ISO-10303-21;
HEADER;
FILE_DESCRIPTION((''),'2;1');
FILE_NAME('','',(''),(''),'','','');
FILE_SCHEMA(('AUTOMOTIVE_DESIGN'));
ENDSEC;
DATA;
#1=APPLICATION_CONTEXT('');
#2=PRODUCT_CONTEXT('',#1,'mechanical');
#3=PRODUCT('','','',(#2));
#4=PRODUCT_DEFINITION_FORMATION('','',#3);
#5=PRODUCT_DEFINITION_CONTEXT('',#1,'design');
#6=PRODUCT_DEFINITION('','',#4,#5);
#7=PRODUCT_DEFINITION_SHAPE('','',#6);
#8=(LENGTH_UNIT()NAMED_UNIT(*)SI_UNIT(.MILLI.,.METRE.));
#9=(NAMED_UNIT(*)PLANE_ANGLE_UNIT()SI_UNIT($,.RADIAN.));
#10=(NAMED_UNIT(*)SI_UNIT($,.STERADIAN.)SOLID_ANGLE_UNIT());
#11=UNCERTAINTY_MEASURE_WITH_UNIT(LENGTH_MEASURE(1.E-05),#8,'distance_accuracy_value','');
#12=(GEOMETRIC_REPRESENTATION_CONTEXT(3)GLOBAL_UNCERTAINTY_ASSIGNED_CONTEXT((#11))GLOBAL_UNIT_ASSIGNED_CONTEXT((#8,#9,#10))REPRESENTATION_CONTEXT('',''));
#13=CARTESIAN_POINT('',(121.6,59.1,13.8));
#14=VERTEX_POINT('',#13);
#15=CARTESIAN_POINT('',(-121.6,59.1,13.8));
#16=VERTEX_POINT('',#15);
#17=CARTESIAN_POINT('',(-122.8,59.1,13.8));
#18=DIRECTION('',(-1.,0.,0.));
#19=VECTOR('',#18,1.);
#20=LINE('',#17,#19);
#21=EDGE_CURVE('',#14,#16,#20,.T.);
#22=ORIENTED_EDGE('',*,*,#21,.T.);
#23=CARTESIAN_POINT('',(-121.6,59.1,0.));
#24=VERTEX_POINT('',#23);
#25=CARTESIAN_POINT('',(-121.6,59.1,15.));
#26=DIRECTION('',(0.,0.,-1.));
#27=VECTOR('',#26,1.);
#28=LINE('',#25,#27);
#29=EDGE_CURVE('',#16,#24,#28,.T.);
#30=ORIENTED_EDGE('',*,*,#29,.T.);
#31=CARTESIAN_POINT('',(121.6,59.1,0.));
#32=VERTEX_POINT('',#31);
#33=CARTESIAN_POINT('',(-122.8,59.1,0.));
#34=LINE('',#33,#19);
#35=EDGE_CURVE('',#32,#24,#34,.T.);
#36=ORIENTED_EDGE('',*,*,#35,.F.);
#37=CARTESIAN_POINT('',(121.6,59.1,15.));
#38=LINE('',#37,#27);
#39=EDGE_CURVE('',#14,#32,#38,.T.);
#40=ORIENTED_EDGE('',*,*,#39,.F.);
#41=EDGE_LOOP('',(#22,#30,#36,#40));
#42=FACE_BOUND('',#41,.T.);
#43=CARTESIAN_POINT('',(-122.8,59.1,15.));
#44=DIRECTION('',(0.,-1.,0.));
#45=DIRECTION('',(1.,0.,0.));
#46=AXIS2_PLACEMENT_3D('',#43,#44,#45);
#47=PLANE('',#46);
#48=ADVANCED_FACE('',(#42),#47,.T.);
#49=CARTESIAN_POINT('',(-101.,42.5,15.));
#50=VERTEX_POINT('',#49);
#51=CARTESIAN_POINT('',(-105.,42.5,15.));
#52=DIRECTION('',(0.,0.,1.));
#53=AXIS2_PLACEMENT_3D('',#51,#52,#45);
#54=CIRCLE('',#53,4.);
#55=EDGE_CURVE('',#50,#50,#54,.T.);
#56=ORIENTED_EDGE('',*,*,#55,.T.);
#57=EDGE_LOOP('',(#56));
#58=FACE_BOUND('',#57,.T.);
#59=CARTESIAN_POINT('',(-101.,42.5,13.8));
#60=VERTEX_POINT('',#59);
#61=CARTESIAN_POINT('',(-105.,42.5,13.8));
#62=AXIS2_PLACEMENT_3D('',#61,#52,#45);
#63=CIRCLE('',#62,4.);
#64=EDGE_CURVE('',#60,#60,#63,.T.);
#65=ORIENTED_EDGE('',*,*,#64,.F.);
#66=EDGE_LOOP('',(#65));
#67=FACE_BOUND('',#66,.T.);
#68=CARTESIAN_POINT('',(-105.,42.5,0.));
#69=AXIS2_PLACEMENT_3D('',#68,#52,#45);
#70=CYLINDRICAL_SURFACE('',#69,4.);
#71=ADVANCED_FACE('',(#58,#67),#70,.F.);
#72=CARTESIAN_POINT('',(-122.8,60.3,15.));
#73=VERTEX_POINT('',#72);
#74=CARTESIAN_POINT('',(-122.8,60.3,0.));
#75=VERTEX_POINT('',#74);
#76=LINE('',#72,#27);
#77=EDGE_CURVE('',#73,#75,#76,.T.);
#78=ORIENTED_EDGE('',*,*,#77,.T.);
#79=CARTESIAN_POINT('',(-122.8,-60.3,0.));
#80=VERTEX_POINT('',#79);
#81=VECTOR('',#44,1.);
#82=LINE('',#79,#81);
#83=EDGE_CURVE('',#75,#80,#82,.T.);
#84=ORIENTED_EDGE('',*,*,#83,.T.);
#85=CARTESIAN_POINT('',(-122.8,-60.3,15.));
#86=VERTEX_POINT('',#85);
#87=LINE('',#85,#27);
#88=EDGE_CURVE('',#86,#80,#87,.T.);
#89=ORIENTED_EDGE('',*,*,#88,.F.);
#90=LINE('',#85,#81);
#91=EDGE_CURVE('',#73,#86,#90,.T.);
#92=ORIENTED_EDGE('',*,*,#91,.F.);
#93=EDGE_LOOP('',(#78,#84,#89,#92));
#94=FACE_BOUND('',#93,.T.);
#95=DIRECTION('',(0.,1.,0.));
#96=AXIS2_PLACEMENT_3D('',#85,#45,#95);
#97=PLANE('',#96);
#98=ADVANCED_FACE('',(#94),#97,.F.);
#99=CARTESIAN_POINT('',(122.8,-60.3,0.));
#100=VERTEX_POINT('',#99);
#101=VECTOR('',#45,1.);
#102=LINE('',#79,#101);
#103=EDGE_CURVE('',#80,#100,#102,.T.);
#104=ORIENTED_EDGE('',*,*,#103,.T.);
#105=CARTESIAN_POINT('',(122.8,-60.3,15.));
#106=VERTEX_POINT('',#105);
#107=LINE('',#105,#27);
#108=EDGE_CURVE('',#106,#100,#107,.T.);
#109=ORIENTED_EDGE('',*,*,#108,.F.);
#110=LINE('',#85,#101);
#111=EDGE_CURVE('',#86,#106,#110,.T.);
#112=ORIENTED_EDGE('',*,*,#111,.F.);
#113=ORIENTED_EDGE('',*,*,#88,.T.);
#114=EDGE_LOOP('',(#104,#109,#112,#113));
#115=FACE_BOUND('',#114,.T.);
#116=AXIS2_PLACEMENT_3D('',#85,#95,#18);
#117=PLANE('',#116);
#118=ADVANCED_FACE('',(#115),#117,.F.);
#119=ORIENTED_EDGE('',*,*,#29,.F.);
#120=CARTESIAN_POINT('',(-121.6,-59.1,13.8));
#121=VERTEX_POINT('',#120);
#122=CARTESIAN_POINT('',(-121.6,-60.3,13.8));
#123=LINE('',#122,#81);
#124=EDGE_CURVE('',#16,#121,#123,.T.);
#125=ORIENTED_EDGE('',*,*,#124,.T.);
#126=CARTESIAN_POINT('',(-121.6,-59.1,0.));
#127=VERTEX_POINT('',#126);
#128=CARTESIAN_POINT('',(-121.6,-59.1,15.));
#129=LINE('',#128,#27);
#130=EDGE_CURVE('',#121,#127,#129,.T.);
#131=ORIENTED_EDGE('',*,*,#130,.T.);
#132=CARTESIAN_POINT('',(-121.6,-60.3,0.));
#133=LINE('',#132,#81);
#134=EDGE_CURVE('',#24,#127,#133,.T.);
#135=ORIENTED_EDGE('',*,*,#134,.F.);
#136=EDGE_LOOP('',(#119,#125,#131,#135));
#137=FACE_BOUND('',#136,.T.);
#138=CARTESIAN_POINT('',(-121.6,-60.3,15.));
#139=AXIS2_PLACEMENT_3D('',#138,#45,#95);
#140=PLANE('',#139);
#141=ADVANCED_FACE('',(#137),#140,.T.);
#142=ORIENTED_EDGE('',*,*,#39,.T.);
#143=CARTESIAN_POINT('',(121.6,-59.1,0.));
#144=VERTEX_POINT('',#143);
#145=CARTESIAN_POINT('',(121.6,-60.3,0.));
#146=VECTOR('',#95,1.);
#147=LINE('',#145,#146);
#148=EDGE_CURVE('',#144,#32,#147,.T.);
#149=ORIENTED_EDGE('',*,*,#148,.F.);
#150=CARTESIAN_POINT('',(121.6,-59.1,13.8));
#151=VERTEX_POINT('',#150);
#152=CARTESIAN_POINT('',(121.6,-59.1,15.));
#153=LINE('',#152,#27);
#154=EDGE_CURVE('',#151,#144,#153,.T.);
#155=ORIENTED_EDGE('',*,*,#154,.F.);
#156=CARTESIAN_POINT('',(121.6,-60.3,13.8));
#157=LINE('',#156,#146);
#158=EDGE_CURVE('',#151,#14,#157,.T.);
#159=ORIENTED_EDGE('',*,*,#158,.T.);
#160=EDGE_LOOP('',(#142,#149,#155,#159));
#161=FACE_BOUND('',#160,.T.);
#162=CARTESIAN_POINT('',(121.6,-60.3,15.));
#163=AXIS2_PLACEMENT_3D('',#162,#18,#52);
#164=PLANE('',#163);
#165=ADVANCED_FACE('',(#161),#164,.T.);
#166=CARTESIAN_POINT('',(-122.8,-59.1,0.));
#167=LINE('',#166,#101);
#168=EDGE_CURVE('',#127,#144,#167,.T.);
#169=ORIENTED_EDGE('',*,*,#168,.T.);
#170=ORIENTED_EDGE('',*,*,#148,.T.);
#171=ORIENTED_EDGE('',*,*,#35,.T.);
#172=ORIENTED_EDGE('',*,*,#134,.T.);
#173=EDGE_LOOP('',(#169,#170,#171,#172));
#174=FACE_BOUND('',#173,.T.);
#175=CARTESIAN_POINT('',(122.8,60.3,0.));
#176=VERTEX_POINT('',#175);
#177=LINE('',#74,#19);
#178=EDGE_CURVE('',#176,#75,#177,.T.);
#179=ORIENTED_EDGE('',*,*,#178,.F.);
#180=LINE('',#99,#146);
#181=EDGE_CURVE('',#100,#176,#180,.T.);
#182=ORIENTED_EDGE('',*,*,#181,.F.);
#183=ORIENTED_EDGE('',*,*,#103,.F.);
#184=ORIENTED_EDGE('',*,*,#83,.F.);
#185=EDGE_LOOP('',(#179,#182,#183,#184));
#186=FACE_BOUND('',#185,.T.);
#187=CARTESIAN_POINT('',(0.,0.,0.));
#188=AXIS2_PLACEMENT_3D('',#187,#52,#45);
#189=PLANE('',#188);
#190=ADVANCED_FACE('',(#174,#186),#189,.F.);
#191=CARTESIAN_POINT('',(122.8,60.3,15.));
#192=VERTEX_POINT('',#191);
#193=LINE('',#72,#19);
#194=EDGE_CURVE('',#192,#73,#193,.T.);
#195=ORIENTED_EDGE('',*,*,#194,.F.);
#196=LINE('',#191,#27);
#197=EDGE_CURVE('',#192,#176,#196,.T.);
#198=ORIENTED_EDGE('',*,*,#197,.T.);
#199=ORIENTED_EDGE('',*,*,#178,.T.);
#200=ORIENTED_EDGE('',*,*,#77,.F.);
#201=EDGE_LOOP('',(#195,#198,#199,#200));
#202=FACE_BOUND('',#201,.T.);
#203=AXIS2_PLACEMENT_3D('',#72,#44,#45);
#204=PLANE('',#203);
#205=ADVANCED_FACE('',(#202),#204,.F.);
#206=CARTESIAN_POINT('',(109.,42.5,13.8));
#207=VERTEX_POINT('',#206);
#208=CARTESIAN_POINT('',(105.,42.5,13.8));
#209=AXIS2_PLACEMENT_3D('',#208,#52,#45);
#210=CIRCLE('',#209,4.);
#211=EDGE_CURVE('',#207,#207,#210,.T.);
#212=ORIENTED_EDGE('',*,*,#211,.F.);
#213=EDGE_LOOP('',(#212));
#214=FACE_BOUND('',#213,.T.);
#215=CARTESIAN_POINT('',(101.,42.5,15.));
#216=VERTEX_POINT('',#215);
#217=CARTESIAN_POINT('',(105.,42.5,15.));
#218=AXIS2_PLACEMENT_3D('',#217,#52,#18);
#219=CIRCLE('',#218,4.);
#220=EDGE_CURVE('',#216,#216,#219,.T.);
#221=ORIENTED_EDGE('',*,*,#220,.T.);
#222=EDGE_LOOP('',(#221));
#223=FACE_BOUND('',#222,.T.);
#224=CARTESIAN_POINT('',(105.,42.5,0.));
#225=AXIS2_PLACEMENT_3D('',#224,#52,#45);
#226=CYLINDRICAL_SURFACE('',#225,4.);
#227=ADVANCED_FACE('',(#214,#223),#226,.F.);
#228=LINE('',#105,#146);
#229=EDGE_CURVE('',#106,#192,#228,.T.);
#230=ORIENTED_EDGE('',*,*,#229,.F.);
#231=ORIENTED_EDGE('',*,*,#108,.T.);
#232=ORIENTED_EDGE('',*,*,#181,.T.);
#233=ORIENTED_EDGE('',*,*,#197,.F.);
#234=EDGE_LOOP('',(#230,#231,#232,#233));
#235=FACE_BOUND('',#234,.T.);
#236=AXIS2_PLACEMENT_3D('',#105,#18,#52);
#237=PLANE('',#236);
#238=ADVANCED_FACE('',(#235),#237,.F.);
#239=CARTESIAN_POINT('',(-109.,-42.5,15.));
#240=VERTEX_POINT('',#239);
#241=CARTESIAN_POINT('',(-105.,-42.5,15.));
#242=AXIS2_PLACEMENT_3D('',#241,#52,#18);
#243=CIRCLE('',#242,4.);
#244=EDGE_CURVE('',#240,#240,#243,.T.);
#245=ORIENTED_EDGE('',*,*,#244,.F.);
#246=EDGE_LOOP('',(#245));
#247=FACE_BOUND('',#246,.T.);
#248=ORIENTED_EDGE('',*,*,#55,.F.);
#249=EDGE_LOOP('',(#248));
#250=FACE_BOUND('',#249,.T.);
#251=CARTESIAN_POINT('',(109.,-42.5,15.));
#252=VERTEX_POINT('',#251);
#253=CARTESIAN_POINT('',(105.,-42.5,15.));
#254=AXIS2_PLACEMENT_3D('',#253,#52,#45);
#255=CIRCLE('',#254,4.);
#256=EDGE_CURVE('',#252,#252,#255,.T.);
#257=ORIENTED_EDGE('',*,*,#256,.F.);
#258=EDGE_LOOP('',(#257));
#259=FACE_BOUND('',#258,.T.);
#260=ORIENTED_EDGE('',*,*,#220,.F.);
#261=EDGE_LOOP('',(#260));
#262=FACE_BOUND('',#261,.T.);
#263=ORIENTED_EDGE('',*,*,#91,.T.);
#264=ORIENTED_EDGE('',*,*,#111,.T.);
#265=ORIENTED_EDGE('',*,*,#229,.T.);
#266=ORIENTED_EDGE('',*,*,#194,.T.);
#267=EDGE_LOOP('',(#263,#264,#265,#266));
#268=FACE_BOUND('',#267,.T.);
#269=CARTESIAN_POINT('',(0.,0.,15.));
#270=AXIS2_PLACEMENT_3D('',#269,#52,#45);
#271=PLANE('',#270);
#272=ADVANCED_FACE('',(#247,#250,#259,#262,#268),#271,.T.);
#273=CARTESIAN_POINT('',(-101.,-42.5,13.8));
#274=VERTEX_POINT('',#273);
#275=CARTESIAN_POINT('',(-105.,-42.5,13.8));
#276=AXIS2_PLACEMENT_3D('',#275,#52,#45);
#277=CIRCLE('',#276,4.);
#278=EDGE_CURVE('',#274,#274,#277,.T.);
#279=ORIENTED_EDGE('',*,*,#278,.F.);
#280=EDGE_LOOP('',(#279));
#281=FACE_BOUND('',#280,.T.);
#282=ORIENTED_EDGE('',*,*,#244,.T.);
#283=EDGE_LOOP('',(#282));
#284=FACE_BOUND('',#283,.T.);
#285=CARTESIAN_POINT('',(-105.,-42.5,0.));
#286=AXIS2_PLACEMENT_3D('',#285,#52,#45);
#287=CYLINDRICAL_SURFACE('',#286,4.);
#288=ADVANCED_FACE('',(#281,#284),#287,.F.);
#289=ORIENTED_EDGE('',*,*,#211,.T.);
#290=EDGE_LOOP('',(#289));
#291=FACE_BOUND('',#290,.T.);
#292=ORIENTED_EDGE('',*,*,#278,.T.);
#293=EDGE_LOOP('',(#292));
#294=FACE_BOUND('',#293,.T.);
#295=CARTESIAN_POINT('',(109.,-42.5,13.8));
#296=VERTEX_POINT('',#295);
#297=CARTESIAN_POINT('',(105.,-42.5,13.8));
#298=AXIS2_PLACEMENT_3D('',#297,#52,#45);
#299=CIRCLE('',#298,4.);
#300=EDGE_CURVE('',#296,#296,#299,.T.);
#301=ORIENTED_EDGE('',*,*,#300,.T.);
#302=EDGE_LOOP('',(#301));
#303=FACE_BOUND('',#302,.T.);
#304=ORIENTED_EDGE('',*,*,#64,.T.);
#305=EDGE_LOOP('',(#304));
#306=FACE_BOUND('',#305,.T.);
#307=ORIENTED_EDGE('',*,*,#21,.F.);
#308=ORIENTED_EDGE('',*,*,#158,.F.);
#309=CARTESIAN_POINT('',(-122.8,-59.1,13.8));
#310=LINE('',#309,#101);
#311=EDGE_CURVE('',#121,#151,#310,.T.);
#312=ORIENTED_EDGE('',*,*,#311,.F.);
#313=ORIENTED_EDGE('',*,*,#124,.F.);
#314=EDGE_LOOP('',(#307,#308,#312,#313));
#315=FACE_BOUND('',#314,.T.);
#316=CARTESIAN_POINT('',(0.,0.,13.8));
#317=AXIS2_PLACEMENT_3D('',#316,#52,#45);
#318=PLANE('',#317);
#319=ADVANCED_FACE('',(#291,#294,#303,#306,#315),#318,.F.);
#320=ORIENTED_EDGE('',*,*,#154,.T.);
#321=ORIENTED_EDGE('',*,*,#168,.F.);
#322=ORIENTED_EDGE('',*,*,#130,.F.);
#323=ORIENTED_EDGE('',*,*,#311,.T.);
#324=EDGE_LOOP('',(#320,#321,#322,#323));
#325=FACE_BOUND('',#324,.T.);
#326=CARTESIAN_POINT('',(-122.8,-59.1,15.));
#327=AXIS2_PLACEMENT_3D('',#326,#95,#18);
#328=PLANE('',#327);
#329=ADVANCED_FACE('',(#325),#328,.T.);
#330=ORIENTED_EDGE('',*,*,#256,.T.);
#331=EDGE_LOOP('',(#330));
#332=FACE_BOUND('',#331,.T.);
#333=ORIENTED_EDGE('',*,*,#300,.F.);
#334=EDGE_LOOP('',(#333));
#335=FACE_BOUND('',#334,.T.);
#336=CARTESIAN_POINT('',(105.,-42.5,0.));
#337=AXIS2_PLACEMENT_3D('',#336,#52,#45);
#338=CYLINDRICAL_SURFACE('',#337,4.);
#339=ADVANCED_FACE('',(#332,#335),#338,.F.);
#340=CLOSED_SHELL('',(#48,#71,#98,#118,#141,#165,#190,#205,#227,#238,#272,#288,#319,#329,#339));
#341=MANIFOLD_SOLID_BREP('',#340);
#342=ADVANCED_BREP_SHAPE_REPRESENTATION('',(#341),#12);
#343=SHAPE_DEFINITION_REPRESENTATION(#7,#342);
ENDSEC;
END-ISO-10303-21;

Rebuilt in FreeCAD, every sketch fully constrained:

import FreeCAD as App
import Part
import Sketcher
from FreeCAD import Vector
Q = App.Units.Quantity


def faces_at(feature, points):
    """Names of the faces that lie closest to the given points."""
    faces = feature.Shape.Faces
    near = lambda p: min(range(len(faces)), key=lambda i: faces[i].distToShape(Part.Vertex(*p))[0])
    return sorted({f"Face{near(p) + 1}" for p in points})

doc = App.newDocument("Part")
body = doc.addObject("PartDesign::Body", "Body")

sketch1 = doc.addObject("Sketcher::SketchObject", "Sketch")
body.addObject(sketch1)
sketch1.AttachmentSupport = (doc.XY_Plane, [""])
sketch1.MapMode = "FlatFace"
sketch1.addGeometry(Part.LineSegment(Vector(-123, 60, 0), Vector(-123, -60, 0)), False)
sketch1.addGeometry(Part.LineSegment(Vector(-123, -60, 0), Vector(123, -60, 0)), False)
sketch1.addGeometry(Part.LineSegment(Vector(123, -60, 0), Vector(123, 60, 0)), False)
sketch1.addGeometry(Part.LineSegment(Vector(123, 60, 0), Vector(-123, 60, 0)), False)
sketch1.addConstraint(Sketcher.Constraint("Coincident", 0, 2, 1, 1))
sketch1.addConstraint(Sketcher.Constraint("Coincident", 1, 2, 2, 1))
sketch1.addConstraint(Sketcher.Constraint("Coincident", 2, 2, 3, 1))
sketch1.addConstraint(Sketcher.Constraint("Coincident", 3, 2, 0, 1))
sketch1.addConstraint(Sketcher.Constraint("Vertical", 0))
sketch1.addConstraint(Sketcher.Constraint("Horizontal", 1))
sketch1.addConstraint(Sketcher.Constraint("Vertical", 2))
sketch1.addConstraint(Sketcher.Constraint("Horizontal", 3))
sketch1.addConstraint(Sketcher.Constraint("Symmetric", 0, 2, 2, 2, -1, 1))
sketch1.addConstraint(Sketcher.Constraint("DistanceX", 1, 1, 1, 2, Q("245.6 mm")))
sketch1.addConstraint(Sketcher.Constraint("DistanceY", 0, 2, 0, 1, Q("120.6 mm")))
pad1 = doc.addObject("PartDesign::Pad", "Pad")
body.addObject(pad1)
pad1.Profile = sketch1
pad1.Length = 15
doc.recompute()

thickness = doc.addObject("PartDesign::Thickness", "Thickness")
body.addObject(thickness)
thickness.Base = (pad1, faces_at(pad1, [(0, 0, 0)]))
thickness.Value = 1.2
thickness.Reversed = True
thickness.Join = "Intersection"

sketch2 = doc.addObject("Sketcher::SketchObject", "Sketch001")
body.addObject(sketch2)
sketch2.AttachmentSupport = (doc.XY_Plane, [""])
sketch2.MapMode = "FlatFace"
sketch2.AttachmentOffset = App.Placement(Vector(0, 0, 15), App.Rotation())
sketch2.addGeometry(Part.Circle(Vector(-105, 42.5, 0), Vector(0, 0, 1), 4), False)
sketch2.addGeometry(Part.Circle(Vector(105, 42.5, 0), Vector(0, 0, 1), 4), False)
sketch2.addGeometry(Part.Circle(Vector(105, -42.5, 0), Vector(0, 0, 1), 4), False)
sketch2.addGeometry(Part.Circle(Vector(-105, -42.5, 0), Vector(0, 0, 1), 4), False)
sketch2.addConstraint(Sketcher.Constraint("Equal", 0, 1))
sketch2.addConstraint(Sketcher.Constraint("Equal", 1, 2))
sketch2.addConstraint(Sketcher.Constraint("Equal", 2, 3))
sketch2.addConstraint(Sketcher.Constraint("Symmetric", 0, 3, 2, 3, -1, 1))
sketch2.addConstraint(Sketcher.Constraint("Symmetric", 1, 3, 3, 3, -1, 1))
sketch2.addConstraint(Sketcher.Constraint("Symmetric", 0, 3, 1, 3, -2))
sketch2.addConstraint(Sketcher.Constraint("Diameter", 0, Q("8 mm")))
sketch2.addConstraint(Sketcher.Constraint("DistanceX", 0, 3, -1, 1, Q("105 mm")))
sketch2.addConstraint(Sketcher.Constraint("DistanceY", 2, 3, 1, 3, Q("85 mm")))
pocket1 = doc.addObject("PartDesign::Pocket", "Pocket")
body.addObject(pocket1)
pocket1.Profile = sketch2
pocket1.Length = 15

doc.recompute()
